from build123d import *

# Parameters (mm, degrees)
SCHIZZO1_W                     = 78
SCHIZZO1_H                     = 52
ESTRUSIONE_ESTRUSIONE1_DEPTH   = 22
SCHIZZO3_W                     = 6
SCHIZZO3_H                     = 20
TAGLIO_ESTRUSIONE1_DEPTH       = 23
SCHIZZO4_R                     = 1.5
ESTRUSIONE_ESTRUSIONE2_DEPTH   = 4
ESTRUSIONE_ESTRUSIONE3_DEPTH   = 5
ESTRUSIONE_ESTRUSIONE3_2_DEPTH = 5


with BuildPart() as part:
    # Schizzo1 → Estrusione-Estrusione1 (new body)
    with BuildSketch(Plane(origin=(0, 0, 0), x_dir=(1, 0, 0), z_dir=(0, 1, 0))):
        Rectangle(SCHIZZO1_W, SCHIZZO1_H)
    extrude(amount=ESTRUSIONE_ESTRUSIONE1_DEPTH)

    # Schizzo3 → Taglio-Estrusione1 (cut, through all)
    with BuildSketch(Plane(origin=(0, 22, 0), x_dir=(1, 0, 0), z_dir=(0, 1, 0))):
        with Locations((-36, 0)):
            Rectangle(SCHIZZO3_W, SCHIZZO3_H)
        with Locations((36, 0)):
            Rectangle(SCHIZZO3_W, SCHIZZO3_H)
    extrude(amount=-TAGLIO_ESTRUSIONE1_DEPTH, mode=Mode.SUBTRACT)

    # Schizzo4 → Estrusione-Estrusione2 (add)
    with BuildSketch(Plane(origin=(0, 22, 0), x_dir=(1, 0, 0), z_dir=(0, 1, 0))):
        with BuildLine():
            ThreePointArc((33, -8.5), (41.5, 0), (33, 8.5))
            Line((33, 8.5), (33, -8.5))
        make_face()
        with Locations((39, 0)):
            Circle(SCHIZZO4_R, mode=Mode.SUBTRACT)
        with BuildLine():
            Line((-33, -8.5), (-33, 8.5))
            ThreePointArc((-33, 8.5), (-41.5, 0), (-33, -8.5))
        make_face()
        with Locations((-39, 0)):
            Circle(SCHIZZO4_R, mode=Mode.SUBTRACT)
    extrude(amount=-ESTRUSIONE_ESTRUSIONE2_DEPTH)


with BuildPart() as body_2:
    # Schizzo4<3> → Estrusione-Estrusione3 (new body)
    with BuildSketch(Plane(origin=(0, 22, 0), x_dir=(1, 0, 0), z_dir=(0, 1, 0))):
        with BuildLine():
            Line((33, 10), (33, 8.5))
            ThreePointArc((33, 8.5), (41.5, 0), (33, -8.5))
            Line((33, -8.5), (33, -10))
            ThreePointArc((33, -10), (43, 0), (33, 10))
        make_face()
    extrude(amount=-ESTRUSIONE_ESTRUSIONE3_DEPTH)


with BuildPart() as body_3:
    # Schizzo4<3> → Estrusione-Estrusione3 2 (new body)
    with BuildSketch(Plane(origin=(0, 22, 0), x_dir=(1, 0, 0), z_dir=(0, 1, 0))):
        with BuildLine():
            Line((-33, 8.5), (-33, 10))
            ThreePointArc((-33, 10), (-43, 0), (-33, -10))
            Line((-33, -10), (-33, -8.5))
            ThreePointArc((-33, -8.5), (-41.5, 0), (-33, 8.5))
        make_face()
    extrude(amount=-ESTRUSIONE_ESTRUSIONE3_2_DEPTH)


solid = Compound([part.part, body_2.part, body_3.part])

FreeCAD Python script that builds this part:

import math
import FreeCAD as App
import Part
import Sketcher
Q = App.Units.Quantity

doc = App.newDocument("Part")
body = doc.addObject("PartDesign::Body", "Body")

sketch1 = doc.addObject("Sketcher::SketchObject", "Sketch")
body.addObject(sketch1)
sketch1.AttachmentSupport = (doc.XZ_Plane, [""])
sketch1.MapMode = "FlatFace"
sketch1.addGeometry(Part.LineSegment(App.Vector(-39, -26, 0), App.Vector(-39, 26, 0)), False)
sketch1.addGeometry(Part.LineSegment(App.Vector(-39, 26, 0), App.Vector(39, 26, 0)), False)
sketch1.addGeometry(Part.LineSegment(App.Vector(39, 26, 0), App.Vector(39, -26, 0)), False)
sketch1.addGeometry(Part.LineSegment(App.Vector(39, -26, 0), App.Vector(-39, -26, 0)), False)
sketch1.addConstraint(Sketcher.Constraint("Coincident", 0, 2, 1, 1))
sketch1.addConstraint(Sketcher.Constraint("Coincident", 1, 2, 2, 1))
sketch1.addConstraint(Sketcher.Constraint("Coincident", 2, 2, 3, 1))
sketch1.addConstraint(Sketcher.Constraint("Coincident", 3, 2, 0, 1))
sketch1.addConstraint(Sketcher.Constraint("Vertical", 0))
sketch1.addConstraint(Sketcher.Constraint("Horizontal", 1))
sketch1.addConstraint(Sketcher.Constraint("Vertical", 2))
sketch1.addConstraint(Sketcher.Constraint("Horizontal", 3))
sketch1.addConstraint(Sketcher.Constraint("Symmetric", 0, 2, 2, 2, -1, 1))
sketch1.addConstraint(Sketcher.Constraint("DistanceX", 1, 1, 1, 2, Q("78 mm")))
sketch1.addConstraint(Sketcher.Constraint("DistanceY", 0, 1, 0, 2, Q("52 mm")))
pad1 = doc.addObject("PartDesign::Pad", "Pad")
body.addObject(pad1)
pad1.Profile = sketch1
pad1.Length = 22
pad1.Reversed = True

sketch2 = doc.addObject("Sketcher::SketchObject", "Sketch001")
body.addObject(sketch2)
sketch2.AttachmentSupport = (doc.XZ_Plane, [""])
sketch2.MapMode = "FlatFace"
sketch2.AttachmentOffset = App.Placement(App.Vector(0, 0, -22), App.Rotation())
sketch2.addGeometry(Part.LineSegment(App.Vector(-39, -10, 0), App.Vector(-39, 10, 0)), False)
sketch2.addGeometry(Part.LineSegment(App.Vector(-39, 10, 0), App.Vector(-33, 10, 0)), False)
sketch2.addGeometry(Part.LineSegment(App.Vector(-33, 10, 0), App.Vector(-33, -10, 0)), False)
sketch2.addGeometry(Part.LineSegment(App.Vector(-33, -10, 0), App.Vector(-39, -10, 0)), False)
sketch2.addGeometry(Part.LineSegment(App.Vector(33, -10, 0), App.Vector(33, 10, 0)), False)
sketch2.addGeometry(Part.LineSegment(App.Vector(33, 10, 0), App.Vector(39, 10, 0)), False)
sketch2.addGeometry(Part.LineSegment(App.Vector(39, 10, 0), App.Vector(39, -10, 0)), False)
sketch2.addGeometry(Part.LineSegment(App.Vector(39, -10, 0), App.Vector(33, -10, 0)), False)
sketch2.addConstraint(Sketcher.Constraint("Coincident", 0, 2, 1, 1))
sketch2.addConstraint(Sketcher.Constraint("Coincident", 1, 2, 2, 1))
sketch2.addConstraint(Sketcher.Constraint("Coincident", 2, 2, 3, 1))
sketch2.addConstraint(Sketcher.Constraint("Coincident", 3, 2, 0, 1))
sketch2.addConstraint(Sketcher.Constraint("Coincident", 4, 2, 5, 1))
sketch2.addConstraint(Sketcher.Constraint("Coincident", 5, 2, 6, 1))
sketch2.addConstraint(Sketcher.Constraint("Coincident", 6, 2, 7, 1))
sketch2.addConstraint(Sketcher.Constraint("Coincident", 7, 2, 4, 1))
sketch2.addConstraint(Sketcher.Constraint("Vertical", 0))
sketch2.addConstraint(Sketcher.Constraint("Horizontal", 1))
sketch2.addConstraint(Sketcher.Constraint("Vertical", 2))
sketch2.addConstraint(Sketcher.Constraint("Horizontal", 3))
sketch2.addConstraint(Sketcher.Constraint("Vertical", 4))
sketch2.addConstraint(Sketcher.Constraint("Horizontal", 5))
sketch2.addConstraint(Sketcher.Constraint("Vertical", 6))
sketch2.addConstraint(Sketcher.Constraint("Horizontal", 7))
sketch2.addConstraint(Sketcher.Constraint("Symmetric", 2, 2, 4, 2, -1, 1))
sketch2.addConstraint(Sketcher.Constraint("Symmetric", 0, 2, 6, 2, -1, 1))
sketch2.addConstraint(Sketcher.Constraint("Horizontal", 1, 2, 4, 2))
sketch2.addConstraint(Sketcher.Constraint("DistanceX", 1, 1, 1, 2, Q("6 mm")))
sketch2.addConstraint(Sketcher.Constraint("DistanceY", 0, 1, 0, 2, Q("20 mm")))
sketch2.addConstraint(Sketcher.Constraint("DistanceX", 0, 2, -1, 1, Q("39 mm")))
pocket1 = doc.addObject("PartDesign::Pocket", "Pocket")
body.addObject(pocket1)
pocket1.Profile = sketch2
pocket1.Type = "ThroughAll"
pocket1.Reversed = True

sketch3 = doc.addObject("Sketcher::SketchObject", "Sketch002")
body.addObject(sketch3)
sketch3.AttachmentSupport = (doc.XZ_Plane, [""])
sketch3.MapMode = "FlatFace"
sketch3.AttachmentOffset = App.Placement(App.Vector(0, 0, -22), App.Rotation())
sketch3.addGeometry(Part.ArcOfCircle(Part.Circle(App.Vector(33, 0, 0), App.Vector(0, 0, 1), 8.5), math.radians(-90), math.radians(90)), False)
sketch3.addGeometry(Part.LineSegment(App.Vector(33, -8.5, 0), App.Vector(33, 8.5, 0)), False)
sketch3.addGeometry(Part.Circle(App.Vector(39, 0, 0), App.Vector(0, 0, 1), 1.5), False)
sketch3.addGeometry(Part.LineSegment(App.Vector(-33, 8.5, 0), App.Vector(-33, -8.5, 0)), False)
sketch3.addGeometry(Part.ArcOfCircle(Part.Circle(App.Vector(-33, 0, 0), App.Vector(0, 0, 1), 8.5), math.radians(90), math.radians(270)), False)
sketch3.addGeometry(Part.Circle(App.Vector(-39, 0, 0), App.Vector(0, 0, 1), 1.5), False)
sketch3.addConstraint(Sketcher.Constraint("Coincident", 0, 1, 1, 1))
sketch3.addConstraint(Sketcher.Constraint("Coincident", 1, 2, 0, 2))
sketch3.addConstraint(Sketcher.Constraint("Coincident", 3, 1, 4, 1))
sketch3.addConstraint(Sketcher.Constraint("Coincident", 4, 2, 3, 2))
sketch3.addConstraint(Sketcher.Constraint("Vertical", 1))
sketch3.addConstraint(Sketcher.Constraint("Vertical", 3))
sketch3.addConstraint(Sketcher.Constraint("Equal", 0, 4))
sketch3.addConstraint(Sketcher.Constraint("Equal", 2, 5))
sketch3.addConstraint(Sketcher.Constraint("Symmetric", 0, 3, 4, 3, -1, 1))
sketch3.addConstraint(Sketcher.Constraint("Symmetric", 2, 3, 5, 3, -1, 1))
sketch3.addConstraint(Sketcher.Constraint("Symmetric", 1, 2, 3, 1, -2))
sketch3.addConstraint(Sketcher.Constraint("PointOnObject", 2, 3, -1))
sketch3.addConstraint(Sketcher.Constraint("Vertical", 4, 3, 3, 1))
sketch3.addConstraint(Sketcher.Constraint("Diameter", 2, Q("3 mm")))
sketch3.addConstraint(Sketcher.Constraint("Radius", 0, Q("8.5 mm")))
sketch3.addConstraint(Sketcher.Constraint("DistanceX", -1, 1, 0, 3, Q("33 mm")))
sketch3.addConstraint(Sketcher.Constraint("DistanceX", -1, 1, 2, 3, Q("39 mm")))
pad2 = doc.addObject("PartDesign::Pad", "Pad001")
body.addObject(pad2)
pad2.Profile = sketch3
pad2.Length = 4
body2 = doc.addObject("PartDesign::Body", "Body001")

sketch4 = doc.addObject("Sketcher::SketchObject", "Sketch003")
body2.addObject(sketch4)
sketch4.AttachmentSupport = (doc.getObject("XZ_Plane001"), [""])
sketch4.MapMode = "FlatFace"
sketch4.AttachmentOffset = App.Placement(App.Vector(0, 0, -22), App.Rotation())
sketch4.addGeometry(Part.LineSegment(App.Vector(33, -10, 0), App.Vector(33, -8.5, 0)), False)
sketch4.addGeometry(Part.ArcOfCircle(Part.Circle(App.Vector(33, 0, 0), App.Vector(0, 0, 1), 8.5), math.radians(-90), math.radians(90)), False)
sketch4.addGeometry(Part.LineSegment(App.Vector(33, 8.5, 0), App.Vector(33, 10, 0)), False)
sketch4.addGeometry(Part.ArcOfCircle(Part.Circle(App.Vector(33, 0, 0), App.Vector(0, 0, 1), 10), math.radians(-90), math.radians(90)), False)
sketch4.addConstraint(Sketcher.Constraint("Coincident", 0, 2, 1, 1))
sketch4.addConstraint(Sketcher.Constraint("Coincident", 1, 2, 2, 1))
sketch4.addConstraint(Sketcher.Constraint("Coincident", 2, 2, 3, 2))
sketch4.addConstraint(Sketcher.Constraint("Coincident", 3, 1, 0, 1))
sketch4.addConstraint(Sketcher.Constraint("Vertical", 0))
sketch4.addConstraint(Sketcher.Constraint("Vertical", 2))
sketch4.addConstraint(Sketcher.Constraint("Coincident", 3, 3, 1, 3))
sketch4.addConstraint(Sketcher.Constraint("Symmetric", 0, 2, 1, 2, -1))
sketch4.addConstraint(Sketcher.Constraint("Vertical", 3, 3, 0, 2))
sketch4.addConstraint(Sketcher.Constraint("Radius", 3, Q("10 mm")))
sketch4.addConstraint(Sketcher.Constraint("Radius", 1, Q("8.5 mm")))
sketch4.addConstraint(Sketcher.Constraint("DistanceX", -1, 1, 1, 3, Q("33 mm")))
pad3 = doc.addObject("PartDesign::Pad", "Pad002")
body2.addObject(pad3)
pad3.Profile = sketch4
pad3.Length = 5
body3 = doc.addObject("PartDesign::Body", "Body002")

sketch5 = doc.addObject("Sketcher::SketchObject", "Sketch004")
body3.addObject(sketch5)
sketch5.AttachmentSupport = (doc.getObject("XZ_Plane002"), [""])
sketch5.MapMode = "FlatFace"
sketch5.AttachmentOffset = App.Placement(App.Vector(0, 0, -22), App.Rotation())
sketch5.addGeometry(Part.LineSegment(App.Vector(-33, -8.5, 0), App.Vector(-33, -10, 0)), False)
sketch5.addGeometry(Part.ArcOfCircle(Part.Circle(App.Vector(-33, 0, 0), App.Vector(0, 0, 1), 10), math.radians(90), math.radians(270)), False)
sketch5.addGeometry(Part.LineSegment(App.Vector(-33, 10, 0), App.Vector(-33, 8.5, 0)), False)
sketch5.addGeometry(Part.ArcOfCircle(Part.Circle(App.Vector(-33, 0, 0), App.Vector(0, 0, 1), 8.5), math.radians(90), math.radians(270)), False)
sketch5.addConstraint(Sketcher.Constraint("Coincident", 0, 2, 1, 2))
sketch5.addConstraint(Sketcher.Constraint("Coincident", 1, 1, 2, 1))
sketch5.addConstraint(Sketcher.Constraint("Coincident", 2, 2, 3, 1))
sketch5.addConstraint(Sketcher.Constraint("Coincident", 3, 2, 0, 1))
sketch5.addConstraint(Sketcher.Constraint("Vertical", 0))
sketch5.addConstraint(Sketcher.Constraint("Vertical", 2))
sketch5.addConstraint(Sketcher.Constraint("Coincident", 3, 3, 1, 3))
sketch5.addConstraint(Sketcher.Constraint("Symmetric", 0, 2, 1, 1, -1))
sketch5.addConstraint(Sketcher.Constraint("Vertical", 3, 3, 0, 2))
sketch5.addConstraint(Sketcher.Constraint("Radius", 1, Q("10 mm")))
sketch5.addConstraint(Sketcher.Constraint("Radius", 3, Q("8.5 mm")))
sketch5.addConstraint(Sketcher.Constraint("DistanceX", 1, 3, -1, 1, Q("33 mm")))
pad4 = doc.addObject("PartDesign::Pad", "Pad003")
body3.addObject(pad4)
pad4.Profile = sketch5
pad4.Length = 5

doc.recompute()
